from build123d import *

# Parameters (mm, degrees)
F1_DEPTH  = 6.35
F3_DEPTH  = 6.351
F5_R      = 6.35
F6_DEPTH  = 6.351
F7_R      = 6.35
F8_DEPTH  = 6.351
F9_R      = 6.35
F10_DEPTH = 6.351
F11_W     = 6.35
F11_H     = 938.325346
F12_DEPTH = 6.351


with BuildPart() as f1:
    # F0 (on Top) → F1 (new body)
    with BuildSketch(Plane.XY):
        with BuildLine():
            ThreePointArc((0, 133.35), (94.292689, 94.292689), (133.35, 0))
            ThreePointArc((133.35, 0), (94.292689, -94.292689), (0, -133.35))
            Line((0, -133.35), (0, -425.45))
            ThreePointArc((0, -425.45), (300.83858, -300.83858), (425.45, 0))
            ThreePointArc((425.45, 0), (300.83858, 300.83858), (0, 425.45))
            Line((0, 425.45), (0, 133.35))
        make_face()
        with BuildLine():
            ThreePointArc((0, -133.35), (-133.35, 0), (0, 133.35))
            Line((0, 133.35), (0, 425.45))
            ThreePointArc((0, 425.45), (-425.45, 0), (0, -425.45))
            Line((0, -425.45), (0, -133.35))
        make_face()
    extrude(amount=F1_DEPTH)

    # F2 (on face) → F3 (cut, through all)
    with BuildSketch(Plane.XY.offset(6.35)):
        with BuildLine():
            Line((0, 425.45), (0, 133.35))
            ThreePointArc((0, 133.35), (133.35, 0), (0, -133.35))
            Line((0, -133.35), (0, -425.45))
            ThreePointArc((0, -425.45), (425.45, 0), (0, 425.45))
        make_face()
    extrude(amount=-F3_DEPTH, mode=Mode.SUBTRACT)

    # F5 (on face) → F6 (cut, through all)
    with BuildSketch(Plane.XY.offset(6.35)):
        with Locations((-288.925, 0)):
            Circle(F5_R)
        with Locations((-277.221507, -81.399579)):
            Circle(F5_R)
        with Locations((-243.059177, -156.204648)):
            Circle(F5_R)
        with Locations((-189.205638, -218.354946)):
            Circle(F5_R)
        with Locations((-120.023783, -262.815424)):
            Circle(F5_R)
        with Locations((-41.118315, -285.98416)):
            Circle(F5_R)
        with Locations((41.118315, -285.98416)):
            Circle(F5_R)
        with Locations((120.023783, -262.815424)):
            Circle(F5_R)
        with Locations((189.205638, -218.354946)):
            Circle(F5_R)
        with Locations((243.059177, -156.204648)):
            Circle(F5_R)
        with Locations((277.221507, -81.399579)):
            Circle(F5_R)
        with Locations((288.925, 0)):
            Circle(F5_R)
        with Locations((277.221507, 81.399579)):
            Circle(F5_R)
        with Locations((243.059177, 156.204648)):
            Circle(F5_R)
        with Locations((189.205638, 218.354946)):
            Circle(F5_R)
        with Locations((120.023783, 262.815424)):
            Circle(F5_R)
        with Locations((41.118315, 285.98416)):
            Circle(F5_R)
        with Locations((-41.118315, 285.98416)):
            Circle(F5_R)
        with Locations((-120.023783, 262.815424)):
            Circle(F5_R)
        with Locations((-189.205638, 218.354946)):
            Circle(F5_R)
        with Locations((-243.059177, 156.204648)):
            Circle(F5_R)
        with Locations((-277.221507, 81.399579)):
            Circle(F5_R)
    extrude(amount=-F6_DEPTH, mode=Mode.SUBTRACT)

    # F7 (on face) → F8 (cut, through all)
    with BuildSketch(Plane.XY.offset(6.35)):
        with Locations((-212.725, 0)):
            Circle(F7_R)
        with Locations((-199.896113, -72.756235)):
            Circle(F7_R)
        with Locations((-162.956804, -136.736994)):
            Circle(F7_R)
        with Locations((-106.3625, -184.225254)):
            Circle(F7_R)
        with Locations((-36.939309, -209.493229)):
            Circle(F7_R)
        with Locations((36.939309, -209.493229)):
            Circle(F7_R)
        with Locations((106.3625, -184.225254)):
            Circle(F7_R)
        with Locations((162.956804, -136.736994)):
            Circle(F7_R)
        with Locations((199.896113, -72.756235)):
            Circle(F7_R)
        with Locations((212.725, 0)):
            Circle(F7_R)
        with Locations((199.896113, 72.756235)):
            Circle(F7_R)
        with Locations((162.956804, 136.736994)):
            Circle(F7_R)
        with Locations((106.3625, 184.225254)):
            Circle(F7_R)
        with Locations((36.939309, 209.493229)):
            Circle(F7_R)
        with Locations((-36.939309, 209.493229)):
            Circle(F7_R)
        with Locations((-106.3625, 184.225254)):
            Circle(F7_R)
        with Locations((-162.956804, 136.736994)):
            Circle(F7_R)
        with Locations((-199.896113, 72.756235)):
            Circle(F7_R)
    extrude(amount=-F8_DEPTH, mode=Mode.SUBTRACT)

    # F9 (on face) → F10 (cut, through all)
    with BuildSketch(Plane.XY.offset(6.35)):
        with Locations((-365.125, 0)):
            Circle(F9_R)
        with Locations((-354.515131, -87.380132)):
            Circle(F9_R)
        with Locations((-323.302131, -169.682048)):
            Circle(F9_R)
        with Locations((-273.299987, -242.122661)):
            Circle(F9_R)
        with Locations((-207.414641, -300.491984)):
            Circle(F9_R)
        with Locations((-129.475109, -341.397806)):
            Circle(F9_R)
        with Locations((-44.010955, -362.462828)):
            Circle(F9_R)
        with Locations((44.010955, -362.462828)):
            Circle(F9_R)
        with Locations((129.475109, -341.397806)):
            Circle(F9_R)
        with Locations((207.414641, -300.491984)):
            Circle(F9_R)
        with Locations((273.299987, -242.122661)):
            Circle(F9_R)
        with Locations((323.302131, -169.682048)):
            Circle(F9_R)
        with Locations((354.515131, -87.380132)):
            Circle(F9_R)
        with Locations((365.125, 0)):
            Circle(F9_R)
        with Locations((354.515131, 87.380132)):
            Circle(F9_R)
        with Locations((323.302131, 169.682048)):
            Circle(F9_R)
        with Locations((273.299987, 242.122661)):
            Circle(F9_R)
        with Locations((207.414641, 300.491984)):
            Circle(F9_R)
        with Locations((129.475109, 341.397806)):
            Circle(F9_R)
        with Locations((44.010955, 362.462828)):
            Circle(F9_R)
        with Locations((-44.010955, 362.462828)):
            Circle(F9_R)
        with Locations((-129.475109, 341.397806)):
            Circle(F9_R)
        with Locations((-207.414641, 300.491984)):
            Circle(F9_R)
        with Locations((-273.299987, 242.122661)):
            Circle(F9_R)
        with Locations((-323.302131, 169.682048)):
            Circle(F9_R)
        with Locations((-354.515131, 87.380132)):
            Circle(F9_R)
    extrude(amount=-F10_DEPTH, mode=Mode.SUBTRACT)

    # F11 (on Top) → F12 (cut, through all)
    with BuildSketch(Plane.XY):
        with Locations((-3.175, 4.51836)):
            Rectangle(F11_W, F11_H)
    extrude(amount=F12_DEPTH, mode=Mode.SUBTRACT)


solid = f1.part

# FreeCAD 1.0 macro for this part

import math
import FreeCAD as App
import Part
import Sketcher
from FreeCAD import Vector
Q = App.Units.Quantity


def add_polygon(sketch, points):
    """Adds a closed chain of lines whose ends are joined by coincident constraints."""
    first, n = sketch.GeometryCount, len(points)
    for a, b in zip(points, points[1:] + points[:1]):
        sketch.addGeometry(Part.LineSegment(App.Vector(*a, 0), App.Vector(*b, 0)), False)
    for i in range(n):
        sketch.addConstraint(Sketcher.Constraint("Coincident", first + i, 2, first + (i + 1) % n, 1))

doc = App.newDocument("Part")
body = doc.addObject("PartDesign::Body", "Body")

sketch1 = body.newObject("Sketcher::SketchObject", "Sketch")
sketch1.AttachmentSupport = (doc.getObject("XY_Plane"), [""])
sketch1.MapMode = "FlatFace"
sketch1.addGeometry([
    Part.ArcOfCircle(Part.Circle(Vector(0, 0, 0), Vector(0, 0, 1), 425.45), math.radians(-90), math.radians(0)),
    Part.ArcOfCircle(Part.Circle(Vector(0, 0, 0), Vector(0, 0, 1), 425.45), math.radians(0), math.radians(90)),
    Part.ArcOfCircle(Part.Circle(Vector(0, 0, 0), Vector(0, 0, 1), 425.45), math.radians(90), math.radians(270)),
    Part.ArcOfCircle(Part.Circle(Vector(-0.000001, -0.000001, 0), Vector(0, 0, 1), 133.350001), math.radians(0), math.radians(90)),
    Part.ArcOfCircle(Part.Circle(Vector(-0.000001, 0.000001, 0), Vector(0, 0, 1), 133.350001), math.radians(-90), math.radians(0)),
    Part.ArcOfCircle(Part.Circle(Vector(0, 0, 0), Vector(0, 0, 1), 133.35), math.radians(90), math.radians(270)),
], False)
sketch1.addConstraint([
    Sketcher.Constraint("Tangent", 0, 2, 1, 1),
    Sketcher.Constraint("Tangent", 1, 2, 2, 1),
    Sketcher.Constraint("Coincident", 2, 2, 0, 1),
    Sketcher.Constraint("Tangent", 3, 1, 4, 2),
    Sketcher.Constraint("Tangent", 4, 1, 5, 2),
    Sketcher.Constraint("Tangent", 5, 1, 3, 2),
    Sketcher.Constraint("Coincident", 0, 3, -1, 1),
    Sketcher.Constraint("Coincident", 3, 3, -1, 1),
    Sketcher.Constraint("Equal", 0, 1),
    Sketcher.Constraint("PointOnObject", 0, 2, -1),
    Sketcher.Constraint("PointOnObject", 1, 2, -2),
    Sketcher.Constraint("PointOnObject", 2, 2, -2),
    Sketcher.Constraint("PointOnObject", 3, 1, -1),
    Sketcher.Constraint("PointOnObject", 4, 1, -2),
    Sketcher.Constraint("PointOnObject", 5, 1, -2),
    Sketcher.Constraint("Radius", 0, Q("16.75 in")),
    Sketcher.Constraint("Radius", 3, Q("5.25 in")),
])
pad1 = body.newObject("PartDesign::Pad", "Pad")
pad1.Profile = sketch1
pad1.Length = Q("0.25 in")

sketch2 = body.newObject("Sketcher::SketchObject", "Sketch001")
sketch2.AttachmentSupport = (doc.getObject("XY_Plane"), [""])
sketch2.MapMode = "FlatFace"
sketch2.AttachmentOffset = App.Placement(Vector(0, 0, 0.25 * 25.4), App.Rotation())
sketch2.addGeometry([
    Part.LineSegment(Vector(0, 425.45, 0), Vector(0, 133.35, 0)),
    Part.ArcOfCircle(Part.Circle(Vector(0, 0, 0), Vector(0, 0, 1), 133.35), math.radians(-90), math.radians(90)),
    Part.LineSegment(Vector(0, -133.35, 0), Vector(0, -425.45, 0)),
    Part.ArcOfCircle(Part.Circle(Vector(0, 0, 0), Vector(0, 0, 1), 425.45), math.radians(-90), math.radians(90)),
], False)
sketch2.addConstraint([
    Sketcher.Constraint("Coincident", 0, 2, 1, 2),
    Sketcher.Constraint("Coincident", 1, 1, 2, 1),
    Sketcher.Constraint("Coincident", 2, 2, 3, 1),
    Sketcher.Constraint("Coincident", 3, 2, 0, 1),
    Sketcher.Constraint("Vertical", 0),
    Sketcher.Constraint("Vertical", 2),
    Sketcher.Constraint("Coincident", 1, 3, -1, 1),
    Sketcher.Constraint("Coincident", 3, 3, -1, 1),
    Sketcher.Constraint("PointOnObject", 0, 2, -2),
    Sketcher.Constraint("PointOnObject", 1, 1, -2),
    Sketcher.Constraint("Radius", 1, Q("5.25 in")),
    Sketcher.Constraint("Radius", 3, Q("16.75 in")),
])
pocket1 = body.newObject("PartDesign::Pocket", "Pocket")
pocket1.Profile = sketch2
pocket1.Type = "ThroughAll"

sketch3 = body.newObject("Sketcher::SketchObject", "Sketch002")
sketch3.AttachmentSupport = (doc.getObject("XY_Plane"), [""])
sketch3.MapMode = "FlatFace"
sketch3.AttachmentOffset = App.Placement(Vector(0, 0, 0.25 * 25.4), App.Rotation())
sketch3.addGeometry([
    Part.Circle(Vector(-288.925, 0, 0), Vector(0, 0, 1), 6.35),
    Part.Circle(Vector(-277.221507, -81.399579, 0), Vector(0, 0, 1), 6.35),
    Part.Circle(Vector(-243.059177, -156.204648, 0), Vector(0, 0, 1), 6.35),
    Part.Circle(Vector(-189.205638, -218.354946, 0), Vector(0, 0, 1), 6.35),
    Part.Circle(Vector(-120.023783, -262.815424, 0), Vector(0, 0, 1), 6.35),
    Part.Circle(Vector(-41.118315, -285.98416, 0), Vector(0, 0, 1), 6.35),
    Part.Circle(Vector(41.118315, -285.98416, 0), Vector(0, 0, 1), 6.35),
    Part.Circle(Vector(120.023783, -262.815424, 0), Vector(0, 0, 1), 6.35),
    Part.Circle(Vector(189.205638, -218.354946, 0), Vector(0, 0, 1), 6.35),
    Part.Circle(Vector(243.059177, -156.204648, 0), Vector(0, 0, 1), 6.35),
    Part.Circle(Vector(277.221507, -81.399579, 0), Vector(0, 0, 1), 6.35),
    Part.Circle(Vector(288.925, 0, 0), Vector(0, 0, 1), 6.35),
    Part.Circle(Vector(277.221507, 81.399579, 0), Vector(0, 0, 1), 6.35),
    Part.Circle(Vector(243.059177, 156.204648, 0), Vector(0, 0, 1), 6.35),
    Part.Circle(Vector(189.205638, 218.354946, 0), Vector(0, 0, 1), 6.35),
    Part.Circle(Vector(120.023783, 262.815424, 0), Vector(0, 0, 1), 6.35),
    Part.Circle(Vector(41.118315, 285.98416, 0), Vector(0, 0, 1), 6.35),
    Part.Circle(Vector(-41.118315, 285.98416, 0), Vector(0, 0, 1), 6.35),
    Part.Circle(Vector(-120.023783, 262.815424, 0), Vector(0, 0, 1), 6.35),
    Part.Circle(Vector(-189.205638, 218.354946, 0), Vector(0, 0, 1), 6.35),
    Part.Circle(Vector(-243.059177, 156.204648, 0), Vector(0, 0, 1), 6.35),
    Part.Circle(Vector(-277.221507, 81.399579, 0), Vector(0, 0, 1), 6.35),
], False)
sketch3.addConstraint([
    Sketcher.Constraint("Equal", 0, 1),
    Sketcher.Constraint("Equal", 1, 2),
    Sketcher.Constraint("Equal", 2, 3),
    Sketcher.Constraint("Equal", 3, 4),
    Sketcher.Constraint("Equal", 4, 5),
    Sketcher.Constraint("Equal", 5, 6),
    Sketcher.Constraint("Equal", 6, 7),
    Sketcher.Constraint("Equal", 7, 8),
    Sketcher.Constraint("Equal", 8, 9),
    Sketcher.Constraint("Equal", 9, 10),
    Sketcher.Constraint("Equal", 10, 11),
    Sketcher.Constraint("Equal", 11, 12),
    Sketcher.Constraint("Equal", 12, 13),
    Sketcher.Constraint("Equal", 13, 14),
    Sketcher.Constraint("Equal", 14, 15),
    Sketcher.Constraint("Equal", 15, 16),
    Sketcher.Constraint("Equal", 16, 17),
    Sketcher.Constraint("Equal", 17, 18),
    Sketcher.Constraint("Equal", 18, 19),
    Sketcher.Constraint("Equal", 19, 20),
    Sketcher.Constraint("Equal", 20, 21),
    Sketcher.Constraint("Symmetric", 0, 3, 11, 3, -1, 1),
    Sketcher.Constraint("Symmetric", 1, 3, 12, 3, -1, 1),
    Sketcher.Constraint("Symmetric", 2, 3, 13, 3, -1, 1),
    Sketcher.Constraint("Symmetric", 3, 3, 14, 3, -1, 1),
    Sketcher.Constraint("Symmetric", 4, 3, 15, 3, -1, 1),
    Sketcher.Constraint("Symmetric", 5, 3, 16, 3, -1, 1),
    Sketcher.Constraint("Symmetric", 6, 3, 17, 3, -1, 1),
    Sketcher.Constraint("Symmetric", 7, 3, 18, 3, -1, 1),
    Sketcher.Constraint("Symmetric", 8, 3, 19, 3, -1, 1),
    Sketcher.Constraint("Symmetric", 9, 3, 20, 3, -1, 1),
    Sketcher.Constraint("Symmetric", 10, 3, 21, 3, -1, 1),
    Sketcher.Constraint("Symmetric", 5, 3, 6, 3, -2),
    Sketcher.Constraint("Symmetric", 4, 3, 7, 3, -2),
    Sketcher.Constraint("Symmetric", 3, 3, 8, 3, -2),
    Sketcher.Constraint("Symmetric", 2, 3, 9, 3, -2),
    Sketcher.Constraint("Symmetric", 1, 3, 10, 3, -2),
    Sketcher.Constraint("PointOnObject", 0, 3, -1),
    Sketcher.Constraint("Diameter", 0, Q("0.5 in")),
    Sketcher.Constraint("DistanceX", 0, 3, -1, 1, Q("11.375 in")),
    Sketcher.Constraint("DistanceY", 3, 3, 2, 3, Q("62.150298 mm")),
    Sketcher.Constraint("DistanceX", 4, 3, 6, 3, Q("161.142098 mm")),
    Sketcher.Constraint("DistanceY", 1, 3, -1, 1, Q("81.399579 mm")),
    Sketcher.Constraint("DistanceY", 2, 3, -1, 1, Q("156.204648 mm")),
    Sketcher.Constraint("DistanceX", 3, 3, -1, 1, Q("189.205638 mm")),
    Sketcher.Constraint("DistanceY", 5, 3, -1, 1, Q("285.98416 mm")),
    Sketcher.Constraint("DistanceX", 1, 3, 2, 3, Q("34.16233 mm")),
    Sketcher.Constraint("DistanceX", 2, 3, 3, 3, Q("53.853539 mm")),
    Sketcher.Constraint("DistanceX", 1, 3, 5, 3, Q("236.103192 mm")),
    Sketcher.Constraint("DistanceY", 4, 3, -1, 1, Q("262.815424 mm")),
])
pocket2 = body.newObject("PartDesign::Pocket", "Pocket001")
pocket2.Profile = sketch3
pocket2.Type = "ThroughAll"

sketch4 = body.newObject("Sketcher::SketchObject", "Sketch003")
sketch4.AttachmentSupport = (doc.getObject("XY_Plane"), [""])
sketch4.MapMode = "FlatFace"
sketch4.AttachmentOffset = App.Placement(Vector(0, 0, 0.25 * 25.4), App.Rotation())
sketch4.addGeometry([
    Part.Circle(Vector(-212.725, 0, 0), Vector(0, 0, 1), 6.35),
    Part.Circle(Vector(-199.896113, -72.756235, 0), Vector(0, 0, 1), 6.35),
    Part.Circle(Vector(-162.956804, -136.736994, 0), Vector(0, 0, 1), 6.35),
    Part.Circle(Vector(-106.3625, -184.225254, 0), Vector(0, 0, 1), 6.35),
    Part.Circle(Vector(-36.939309, -209.493229, 0), Vector(0, 0, 1), 6.35),
    Part.Circle(Vector(36.939309, -209.493229, 0), Vector(0, 0, 1), 6.35),
    Part.Circle(Vector(106.3625, -184.225254, 0), Vector(0, 0, 1), 6.35),
    Part.Circle(Vector(162.956804, -136.736994, 0), Vector(0, 0, 1), 6.35),
    Part.Circle(Vector(199.896113, -72.756235, 0), Vector(0, 0, 1), 6.35),
    Part.Circle(Vector(212.725, 0, 0), Vector(0, 0, 1), 6.35),
    Part.Circle(Vector(199.896113, 72.756235, 0), Vector(0, 0, 1), 6.35),
    Part.Circle(Vector(162.956804, 136.736994, 0), Vector(0, 0, 1), 6.35),
    Part.Circle(Vector(106.3625, 184.225254, 0), Vector(0, 0, 1), 6.35),
    Part.Circle(Vector(36.939309, 209.493229, 0), Vector(0, 0, 1), 6.35),
    Part.Circle(Vector(-36.939309, 209.493229, 0), Vector(0, 0, 1), 6.35),
    Part.Circle(Vector(-106.3625, 184.225254, 0), Vector(0, 0, 1), 6.35),
    Part.Circle(Vector(-162.956804, 136.736994, 0), Vector(0, 0, 1), 6.35),
    Part.Circle(Vector(-199.896113, 72.756235, 0), Vector(0, 0, 1), 6.35),
], False)
sketch4.addConstraint([
    Sketcher.Constraint("Equal", 0, 1),
    Sketcher.Constraint("Equal", 1, 2),
    Sketcher.Constraint("Equal", 2, 3),
    Sketcher.Constraint("Equal", 3, 4),
    Sketcher.Constraint("Equal", 4, 5),
    Sketcher.Constraint("Equal", 5, 6),
    Sketcher.Constraint("Equal", 6, 7),
    Sketcher.Constraint("Equal", 7, 8),
    Sketcher.Constraint("Equal", 8, 9),
    Sketcher.Constraint("Equal", 9, 10),
    Sketcher.Constraint("Equal", 10, 11),
    Sketcher.Constraint("Equal", 11, 12),
    Sketcher.Constraint("Equal", 12, 13),
    Sketcher.Constraint("Equal", 13, 14),
    Sketcher.Constraint("Equal", 14, 15),
    Sketcher.Constraint("Equal", 15, 16),
    Sketcher.Constraint("Equal", 16, 17),
    Sketcher.Constraint("Symmetric", 0, 3, 9, 3, -1, 1),
    Sketcher.Constraint("Symmetric", 1, 3, 10, 3, -1, 1),
    Sketcher.Constraint("Symmetric", 2, 3, 11, 3, -1, 1),
    Sketcher.Constraint("Symmetric", 3, 3, 12, 3, -1, 1),
    Sketcher.Constraint("Symmetric", 4, 3, 13, 3, -1, 1),
    Sketcher.Constraint("Symmetric", 5, 3, 14, 3, -1, 1),
    Sketcher.Constraint("Symmetric", 6, 3, 15, 3, -1, 1),
    Sketcher.Constraint("Symmetric", 7, 3, 16, 3, -1, 1),
    Sketcher.Constraint("Symmetric", 8, 3, 17, 3, -1, 1),
    Sketcher.Constraint("Symmetric", 4, 3, 5, 3, -2),
    Sketcher.Constraint("Symmetric", 3, 3, 6, 3, -2),
    Sketcher.Constraint("Symmetric", 2, 3, 7, 3, -2),
    Sketcher.Constraint("Symmetric", 1, 3, 8, 3, -2),
    Sketcher.Constraint("PointOnObject", 0, 3, -1),
    Sketcher.Constraint("Diameter", 0, Q("0.5 in")),
    Sketcher.Constraint("DistanceX", 0, 3, -1, 1, Q("8.375 in")),
    Sketcher.Constraint("DistanceX", 3, 3, -1, 1, Q("4.1875 in")),
    Sketcher.Constraint("DistanceX", 4, 3, -1, 1, Q("36.939309 mm")),
    Sketcher.Constraint("DistanceY", 4, 3, -1, 1, Q("209.493229 mm")),
    Sketcher.Constraint("DistanceX", 1, 3, 2, 3, Q("36.939309 mm")),
    Sketcher.Constraint("DistanceY", 2, 3, 1, 3, Q("63.980759 mm")),
    Sketcher.Constraint("DistanceY", 3, 3, 2, 3, Q("47.48826 mm")),
    Sketcher.Constraint("DistanceX", 2, 3, 7, 3, Q("325.913608 mm")),
    Sketcher.Constraint("DistanceY", 8, 3, 10, 3, Q("145.51247 mm")),
])
pocket3 = body.newObject("PartDesign::Pocket", "Pocket002")
pocket3.Profile = sketch4
pocket3.Type = "ThroughAll"

sketch5 = body.newObject("Sketcher::SketchObject", "Sketch004")
sketch5.AttachmentSupport = (doc.getObject("XY_Plane"), [""])
sketch5.MapMode = "FlatFace"
sketch5.AttachmentOffset = App.Placement(Vector(0, 0, 0.25 * 25.4), App.Rotation())
sketch5.addGeometry([
    Part.Circle(Vector(-365.125, 0, 0), Vector(0, 0, 1), 6.35),
    Part.Circle(Vector(-354.515131, -87.380132, 0), Vector(0, 0, 1), 6.35),
    Part.Circle(Vector(-323.302131, -169.682048, 0), Vector(0, 0, 1), 6.35),
    Part.Circle(Vector(-273.299987, -242.122661, 0), Vector(0, 0, 1), 6.35),
    Part.Circle(Vector(-207.414641, -300.491984, 0), Vector(0, 0, 1), 6.35),
    Part.Circle(Vector(-129.475109, -341.397806, 0), Vector(0, 0, 1), 6.35),
    Part.Circle(Vector(-44.010955, -362.462828, 0), Vector(0, 0, 1), 6.35),
    Part.Circle(Vector(44.010955, -362.462828, 0), Vector(0, 0, 1), 6.35),
    Part.Circle(Vector(129.475109, -341.397806, 0), Vector(0, 0, 1), 6.35),
    Part.Circle(Vector(207.414641, -300.491984, 0), Vector(0, 0, 1), 6.35),
    Part.Circle(Vector(273.299987, -242.122661, 0), Vector(0, 0, 1), 6.35),
    Part.Circle(Vector(323.302131, -169.682048, 0), Vector(0, 0, 1), 6.35),
    Part.Circle(Vector(354.515131, -87.380132, 0), Vector(0, 0, 1), 6.35),
    Part.Circle(Vector(365.125, 0, 0), Vector(0, 0, 1), 6.35),
    Part.Circle(Vector(354.515131, 87.380132, 0), Vector(0, 0, 1), 6.35),
    Part.Circle(Vector(323.302131, 169.682048, 0), Vector(0, 0, 1), 6.35),
    Part.Circle(Vector(273.299987, 242.122661, 0), Vector(0, 0, 1), 6.35),
    Part.Circle(Vector(207.414641, 300.491984, 0), Vector(0, 0, 1), 6.35),
    Part.Circle(Vector(129.475109, 341.397806, 0), Vector(0, 0, 1), 6.35),
    Part.Circle(Vector(44.010955, 362.462828, 0), Vector(0, 0, 1), 6.35),
    Part.Circle(Vector(-44.010955, 362.462828, 0), Vector(0, 0, 1), 6.35),
    Part.Circle(Vector(-129.475109, 341.397806, 0), Vector(0, 0, 1), 6.35),
    Part.Circle(Vector(-207.414641, 300.491984, 0), Vector(0, 0, 1), 6.35),
    Part.Circle(Vector(-273.299987, 242.122661, 0), Vector(0, 0, 1), 6.35),
    Part.Circle(Vector(-323.302131, 169.682048, 0), Vector(0, 0, 1), 6.35),
    Part.Circle(Vector(-354.515131, 87.380132, 0), Vector(0, 0, 1), 6.35),
], False)
sketch5.addConstraint([
    Sketcher.Constraint("Equal", 0, 1),
    Sketcher.Constraint("Equal", 1, 2),
    Sketcher.Constraint("Equal", 2, 3),
    Sketcher.Constraint("Equal", 3, 4),
    Sketcher.Constraint("Equal", 4, 5),
    Sketcher.Constraint("Equal", 5, 6),
    Sketcher.Constraint("Equal", 6, 7),
    Sketcher.Constraint("Equal", 7, 8),
    Sketcher.Constraint("Equal", 8, 9),
    Sketcher.Constraint("Equal", 9, 10),
    Sketcher.Constraint("Equal", 10, 11),
    Sketcher.Constraint("Equal", 11, 12),
    Sketcher.Constraint("Equal", 12, 13),
    Sketcher.Constraint("Equal", 13, 14),
    Sketcher.Constraint("Equal", 14, 15),
    Sketcher.Constraint("Equal", 15, 16),
    Sketcher.Constraint("Equal", 16, 17),
    Sketcher.Constraint("Equal", 17, 18),
    Sketcher.Constraint("Equal", 18, 19),
    Sketcher.Constraint("Equal", 19, 20),
    Sketcher.Constraint("Equal", 20, 21),
    Sketcher.Constraint("Equal", 21, 22),
    Sketcher.Constraint("Equal", 22, 23),
    Sketcher.Constraint("Equal", 23, 24),
    Sketcher.Constraint("Equal", 24, 25),
    Sketcher.Constraint("Symmetric", 0, 3, 13, 3, -1, 1),
    Sketcher.Constraint("Symmetric", 1, 3, 14, 3, -1, 1),
    Sketcher.Constraint("Symmetric", 2, 3, 15, 3, -1, 1),
    Sketcher.Constraint("Symmetric", 3, 3, 16, 3, -1, 1),
    Sketcher.Constraint("Symmetric", 4, 3, 17, 3, -1, 1),
    Sketcher.Constraint("Symmetric", 5, 3, 18, 3, -1, 1),
    Sketcher.Constraint("Symmetric", 6, 3, 19, 3, -1, 1),
    Sketcher.Constraint("Symmetric", 7, 3, 20, 3, -1, 1),
    Sketcher.Constraint("Symmetric", 8, 3, 21, 3, -1, 1),
    Sketcher.Constraint("Symmetric", 9, 3, 22, 3, -1, 1),
    Sketcher.Constraint("Symmetric", 10, 3, 23, 3, -1, 1),
    Sketcher.Constraint("Symmetric", 11, 3, 24, 3, -1, 1),
    Sketcher.Constraint("Symmetric", 12, 3, 25, 3, -1, 1),
    Sketcher.Constraint("Symmetric", 6, 3, 7, 3, -2),
    Sketcher.Constraint("Symmetric", 5, 3, 8, 3, -2),
    Sketcher.Constraint("Symmetric", 4, 3, 9, 3, -2),
    Sketcher.Constraint("Symmetric", 3, 3, 10, 3, -2),
    Sketcher.Constraint("Symmetric", 2, 3, 11, 3, -2),
    Sketcher.Constraint("Symmetric", 1, 3, 12, 3, -2),
    Sketcher.Constraint("PointOnObject", 0, 3, -1),
    Sketcher.Constraint("Diameter", 0, Q("0.5 in")),
    Sketcher.Constraint("DistanceX", 0, 3, -1, 1, Q("14.375 in")),
    Sketcher.Constraint("DistanceX", 1, 3, 2, 3, Q("31.213 mm")),
    Sketcher.Constraint("DistanceX", 1, 3, -1, 1, Q("354.515131 mm")),
    Sketcher.Constraint("DistanceY", 2, 3, -1, 1, Q("169.682048 mm")),
    Sketcher.Constraint("DistanceY", 3, 3, -1, 1, Q("242.122661 mm")),
    Sketcher.Constraint("DistanceX", 4, 3, -1, 1, Q("207.414641 mm")),
    Sketcher.Constraint("DistanceX", 5, 3, -1, 1, Q("129.475109 mm")),
    Sketcher.Constraint("DistanceY", 6, 3, -1, 1, Q("362.462828 mm")),
    Sketcher.Constraint("DistanceY", 3, 3, 1, 3, Q("154.742529 mm")),
    Sketcher.Constraint("DistanceY", 4, 3, 1, 3, Q("213.111852 mm")),
    Sketcher.Constraint("DistanceY", 5, 3, 2, 3, Q("171.715758 mm")),
    Sketcher.Constraint("DistanceX", 3, 3, 6, 3, Q("229.289032 mm")),
    Sketcher.Constraint("DistanceX", 6, 3, 7, 3, Q("88.02191 mm")),
])
pocket4 = body.newObject("PartDesign::Pocket", "Pocket003")
pocket4.Profile = sketch5
pocket4.Type = "ThroughAll"

sketch6 = body.newObject("Sketcher::SketchObject", "Sketch005")
sketch6.AttachmentSupport = (doc.getObject("XY_Plane"), [""])
sketch6.MapMode = "FlatFace"
add_polygon(sketch6, [(-6.35, 473.681033), (-6.35, -464.644313), (0, -464.644313), (0, 473.681033)])
sketch6.addConstraint([
    Sketcher.Constraint("Vertical", 0),
    Sketcher.Constraint("Horizontal", 1),
    Sketcher.Constraint("Vertical", 2),
    Sketcher.Constraint("Horizontal", 3),
    Sketcher.Constraint("PointOnObject", 1, 2, -2),
    Sketcher.Constraint("DistanceX", 1, 1, 1, 2, Q("0.25 in")),
    Sketcher.Constraint("DistanceY", 0, 2, 0, 1, Q("938.325346 mm")),
    Sketcher.Constraint("DistanceY", 0, 2, -1, 1, Q("464.644313 mm")),
])
pocket5 = body.newObject("PartDesign::Pocket", "Pocket004")
pocket5.Profile = sketch6
pocket5.Type = "ThroughAll"
pocket5.Reversed = True

doc.recompute()
